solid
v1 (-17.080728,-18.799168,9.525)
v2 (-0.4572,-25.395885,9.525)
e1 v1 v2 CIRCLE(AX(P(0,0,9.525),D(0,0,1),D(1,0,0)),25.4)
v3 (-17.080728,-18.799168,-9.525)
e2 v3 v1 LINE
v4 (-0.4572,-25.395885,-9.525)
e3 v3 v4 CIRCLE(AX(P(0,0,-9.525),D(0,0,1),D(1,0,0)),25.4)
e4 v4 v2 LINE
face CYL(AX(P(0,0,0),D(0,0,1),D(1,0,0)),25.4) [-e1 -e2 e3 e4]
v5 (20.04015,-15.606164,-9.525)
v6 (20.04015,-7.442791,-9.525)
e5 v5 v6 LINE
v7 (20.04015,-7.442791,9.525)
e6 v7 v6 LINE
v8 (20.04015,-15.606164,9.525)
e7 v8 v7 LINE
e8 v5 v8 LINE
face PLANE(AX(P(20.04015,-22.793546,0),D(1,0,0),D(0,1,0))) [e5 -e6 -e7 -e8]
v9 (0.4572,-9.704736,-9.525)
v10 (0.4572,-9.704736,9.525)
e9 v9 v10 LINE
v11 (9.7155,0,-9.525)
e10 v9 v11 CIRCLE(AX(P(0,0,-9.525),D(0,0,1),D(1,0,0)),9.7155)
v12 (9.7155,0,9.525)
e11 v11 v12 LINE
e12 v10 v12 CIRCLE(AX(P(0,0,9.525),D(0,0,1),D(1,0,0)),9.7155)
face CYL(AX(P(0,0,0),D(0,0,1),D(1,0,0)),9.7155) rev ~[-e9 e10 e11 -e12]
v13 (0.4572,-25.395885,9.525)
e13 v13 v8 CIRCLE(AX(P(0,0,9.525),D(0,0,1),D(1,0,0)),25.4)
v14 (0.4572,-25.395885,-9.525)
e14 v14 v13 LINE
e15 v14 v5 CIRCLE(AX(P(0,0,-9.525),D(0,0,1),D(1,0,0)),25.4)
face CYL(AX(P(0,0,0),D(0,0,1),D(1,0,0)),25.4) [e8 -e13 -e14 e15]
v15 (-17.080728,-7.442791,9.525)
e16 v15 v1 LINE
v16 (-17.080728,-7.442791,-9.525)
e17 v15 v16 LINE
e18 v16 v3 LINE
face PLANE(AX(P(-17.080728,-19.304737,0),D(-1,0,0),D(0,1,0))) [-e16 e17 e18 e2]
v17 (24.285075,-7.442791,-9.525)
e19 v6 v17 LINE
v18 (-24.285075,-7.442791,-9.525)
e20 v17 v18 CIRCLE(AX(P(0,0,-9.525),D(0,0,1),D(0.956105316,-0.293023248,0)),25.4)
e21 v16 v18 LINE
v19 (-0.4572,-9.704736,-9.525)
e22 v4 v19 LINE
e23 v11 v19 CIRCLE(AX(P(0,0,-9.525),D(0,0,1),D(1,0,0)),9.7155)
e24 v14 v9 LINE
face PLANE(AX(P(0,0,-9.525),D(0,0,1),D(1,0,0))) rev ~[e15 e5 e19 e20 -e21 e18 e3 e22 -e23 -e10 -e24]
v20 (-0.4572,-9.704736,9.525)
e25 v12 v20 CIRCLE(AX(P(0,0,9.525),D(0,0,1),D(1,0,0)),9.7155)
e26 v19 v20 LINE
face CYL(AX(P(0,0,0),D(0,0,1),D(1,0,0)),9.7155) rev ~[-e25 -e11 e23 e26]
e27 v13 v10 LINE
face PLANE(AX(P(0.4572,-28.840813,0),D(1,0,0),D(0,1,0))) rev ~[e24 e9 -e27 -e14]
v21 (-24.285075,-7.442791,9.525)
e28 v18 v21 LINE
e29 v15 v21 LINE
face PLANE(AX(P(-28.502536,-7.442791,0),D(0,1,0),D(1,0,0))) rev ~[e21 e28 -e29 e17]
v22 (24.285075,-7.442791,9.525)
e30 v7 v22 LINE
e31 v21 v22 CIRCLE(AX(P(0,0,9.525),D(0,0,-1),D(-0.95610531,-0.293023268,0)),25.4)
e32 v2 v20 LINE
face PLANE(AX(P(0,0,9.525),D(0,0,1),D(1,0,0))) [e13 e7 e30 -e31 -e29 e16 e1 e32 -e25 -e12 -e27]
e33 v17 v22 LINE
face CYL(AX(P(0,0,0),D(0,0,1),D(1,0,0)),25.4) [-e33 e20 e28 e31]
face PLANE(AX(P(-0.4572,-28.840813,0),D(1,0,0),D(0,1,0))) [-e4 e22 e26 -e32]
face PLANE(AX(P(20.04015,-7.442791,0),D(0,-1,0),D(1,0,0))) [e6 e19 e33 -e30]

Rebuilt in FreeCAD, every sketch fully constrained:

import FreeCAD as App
import Part
import Sketcher
from FreeCAD import Vector
Q = App.Units.Quantity


def add_polygon(sketch, points):
    """Adds a closed chain of lines whose ends are joined by coincident constraints."""
    first, n = sketch.GeometryCount, len(points)
    for a, b in zip(points, points[1:] + points[:1]):
        sketch.addGeometry(Part.LineSegment(App.Vector(*a, 0), App.Vector(*b, 0)), False)
    for i in range(n):
        sketch.addConstraint(Sketcher.Constraint("Coincident", first + i, 2, first + (i + 1) % n, 1))

doc = App.newDocument("Part")
body = doc.addObject("PartDesign::Body", "Body")

# Sketch on XY plane
sketch1 = body.newObject("Sketcher::SketchObject", "Sketch")
sketch1.AttachmentSupport = (doc.getObject("XY_Plane"), [""])
sketch1.MapMode = "FlatFace"
sketch1.addGeometry([
    Part.Circle(Vector(0, 0, 0), Vector(0, 0, 1), 25),
    Part.Circle(Vector(0, 0, 0), Vector(0, 0, 1), 10),
], False)
sketch1.addConstraint([
    Sketcher.Constraint("Coincident", 0, 3, -1, 1),
    Sketcher.Constraint("Coincident", 1, 3, -1, 1),
    Sketcher.Constraint("Diameter", 0, Q("2 in")),
    Sketcher.Constraint("Diameter", 1, Q("0.755 in")),
])
pad1 = body.newObject("PartDesign::Pad", "Pad")
pad1.Profile = sketch1
pad1.Length = Q("0.75 in")
pad1.Midplane = True

# Sketch on XY plane
sketch2 = body.newObject("Sketcher::SketchObject", "Sketch001")
sketch2.AttachmentSupport = (doc.getObject("XY_Plane"), [""])
sketch2.MapMode = "FlatFace"
add_polygon(sketch2, [(-29, -7), (-29, -19), (-17, -19), (-17, -7)])  # lines 0-3
add_polygon(sketch2, [(20, -7), (20, -23), (37, -23), (37, -7)])  # lines 4-7
sketch2.addConstraint([
    Sketcher.Constraint("Vertical", 0),
    Sketcher.Constraint("Horizontal", 1),
    Sketcher.Constraint("Vertical", 2),
    Sketcher.Constraint("Horizontal", 3),
    Sketcher.Constraint("Vertical", 4),
    Sketcher.Constraint("Horizontal", 5),
    Sketcher.Constraint("Vertical", 6),
    Sketcher.Constraint("Horizontal", 7),
    Sketcher.Constraint("Horizontal", 3, 2, 6, 2),
    Sketcher.Constraint("DistanceX", 5, 1, 5, 2, Q("16.656801 mm")),
    Sketcher.Constraint("DistanceX", 1, 1, 1, 2, Q("11.421807 mm")),
    Sketcher.Constraint("DistanceY", 0, 2, 0, 1, Q("11.861946 mm")),
    Sketcher.Constraint("DistanceY", 4, 2, 4, 1, Q("15.350755 mm")),
    Sketcher.Constraint("DistanceX", 1, 2, -1, 1, Q("17.080728 mm")),
    Sketcher.Constraint("DistanceY", 2, 2, -1, 1, Q("7.442791 mm")),
    Sketcher.Constraint("DistanceX", -1, 1, 4, 2, Q("20.04015 mm")),
])
pocket1 = body.newObject("PartDesign::Pocket", "Pocket")
pocket1.Profile = sketch2
pocket1.Length = Q("1.4 in")
pocket1.Midplane = True

# Sketch on XY plane
sketch3 = body.newObject("Sketcher::SketchObject", "Sketch002")
sketch3.AttachmentSupport = (doc.getObject("XY_Plane"), [""])
sketch3.MapMode = "FlatFace"
add_polygon(sketch3, [(-0.5, -6), (-0.5, -28.8), (0.5, -28.8), (0.5, -6)])  # lines 0-3
sketch3.addConstraint([
    Sketcher.Constraint("Vertical", 0),
    Sketcher.Constraint("Horizontal", 1),
    Sketcher.Constraint("Vertical", 2),
    Sketcher.Constraint("Horizontal", 3),
    Sketcher.Constraint("DistanceX", 1, 1, 1, 2, Q("0.036 in")),
    Sketcher.Constraint("DistanceX", 0, 2, -1, 1, Q("0.018 in")),
    Sketcher.Constraint("DistanceY", 0, 2, 0, 1, Q("22.793547 mm")),
    Sketcher.Constraint("DistanceY", 0, 2, -1, 1, Q("28.840813 mm")),
])
pocket2 = body.newObject("PartDesign::Pocket", "Pocket001")
pocket2.Profile = sketch3
pocket2.Length = Q("1.228 in")
pocket2.Midplane = True

# Sketch on XY plane
sketch4 = body.newObject("Sketcher::SketchObject", "Sketch003")
sketch4.AttachmentSupport = (doc.getObject("XY_Plane"), [""])
sketch4.MapMode = "FlatFace"
sketch4.addGeometry(Part.Circle(Vector(0, 0, 0), Vector(0, 0, 1), 10), False)
sketch4.addConstraint([
    Sketcher.Constraint("Coincident", 0, 3, -1, 1),
    Sketcher.Constraint("Diameter", 0, Q("0.765 in")),
])
pocket3 = body.newObject("PartDesign::Pocket", "Pocket002")
pocket3.Profile = sketch4
pocket3.Length = Q("3 in")
pocket3.Midplane = True

doc.recompute()
